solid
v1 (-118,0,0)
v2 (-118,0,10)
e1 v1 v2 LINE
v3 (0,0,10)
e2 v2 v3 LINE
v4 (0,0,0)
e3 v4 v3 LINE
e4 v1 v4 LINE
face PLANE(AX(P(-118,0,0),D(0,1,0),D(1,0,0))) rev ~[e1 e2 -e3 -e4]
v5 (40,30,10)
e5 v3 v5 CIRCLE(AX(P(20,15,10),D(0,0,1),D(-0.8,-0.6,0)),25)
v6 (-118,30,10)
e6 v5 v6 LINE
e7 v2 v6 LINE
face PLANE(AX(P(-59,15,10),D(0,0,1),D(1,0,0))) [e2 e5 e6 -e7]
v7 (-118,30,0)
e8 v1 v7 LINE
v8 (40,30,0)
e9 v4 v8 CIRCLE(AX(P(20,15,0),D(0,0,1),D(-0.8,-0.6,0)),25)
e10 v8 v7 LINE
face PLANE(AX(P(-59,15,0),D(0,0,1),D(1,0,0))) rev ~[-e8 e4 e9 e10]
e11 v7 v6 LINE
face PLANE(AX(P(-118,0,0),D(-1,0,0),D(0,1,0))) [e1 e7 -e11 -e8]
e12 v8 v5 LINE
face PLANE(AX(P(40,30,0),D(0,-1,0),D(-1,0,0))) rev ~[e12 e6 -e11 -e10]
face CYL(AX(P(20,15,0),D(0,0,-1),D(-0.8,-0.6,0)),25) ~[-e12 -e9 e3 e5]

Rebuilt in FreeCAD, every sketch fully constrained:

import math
import FreeCAD as App
import Part
import Sketcher

V = App.Vector
Q = App.Units.Quantity

doc = App.newDocument("Part")
body = doc.addObject("PartDesign::Body", "Body")

# Sketch on XY plane
sketch1 = doc.addObject("Sketcher::SketchObject", "Sketch")
body.addObject(sketch1)
sketch1.AttachmentSupport = (doc.XY_Plane, [""])
sketch1.MapMode = "FlatFace"
sketch1.addGeometry([
    Part.LineSegment(V(-118, 30, 0), V(-118, 0, 0)),
    Part.LineSegment(V(-118, 0, 0), V(0, 0, 0)),
    Part.ArcOfCircle(Part.Circle(V(20, 15, 0), V(0, 0, 1), 25), math.radians(-143), math.radians(37)),
    Part.LineSegment(V(40, 30, 0), V(-118, 30, 0)),
], False)
sketch1.addConstraint([
    Sketcher.Constraint("Coincident", 0, 2, 1, 1),
    Sketcher.Constraint("Coincident", 1, 2, 2, 1),
    Sketcher.Constraint("Coincident", 2, 2, 3, 1),
    Sketcher.Constraint("Coincident", 3, 2, 0, 1),
    Sketcher.Constraint("Vertical", 0),
    Sketcher.Constraint("Horizontal", 1),
    Sketcher.Constraint("Horizontal", 3),
    Sketcher.Constraint("Coincident", 1, 2, -1, 1),
    Sketcher.Constraint("Radius", 2, Q("25 mm")),
    Sketcher.Constraint("DistanceX", 1, 1, 1, 2, Q("118 mm")),
    Sketcher.Constraint("DistanceX", 3, 2, 3, 1, Q("158 mm")),
    Sketcher.Constraint("DistanceX", -1, 1, 2, 3, Q("20 mm")),
])
pad1 = doc.addObject("PartDesign::Pad", "Pad")
body.addObject(pad1)
pad1.Profile = sketch1
pad1.Length = 10

doc.recompute()
